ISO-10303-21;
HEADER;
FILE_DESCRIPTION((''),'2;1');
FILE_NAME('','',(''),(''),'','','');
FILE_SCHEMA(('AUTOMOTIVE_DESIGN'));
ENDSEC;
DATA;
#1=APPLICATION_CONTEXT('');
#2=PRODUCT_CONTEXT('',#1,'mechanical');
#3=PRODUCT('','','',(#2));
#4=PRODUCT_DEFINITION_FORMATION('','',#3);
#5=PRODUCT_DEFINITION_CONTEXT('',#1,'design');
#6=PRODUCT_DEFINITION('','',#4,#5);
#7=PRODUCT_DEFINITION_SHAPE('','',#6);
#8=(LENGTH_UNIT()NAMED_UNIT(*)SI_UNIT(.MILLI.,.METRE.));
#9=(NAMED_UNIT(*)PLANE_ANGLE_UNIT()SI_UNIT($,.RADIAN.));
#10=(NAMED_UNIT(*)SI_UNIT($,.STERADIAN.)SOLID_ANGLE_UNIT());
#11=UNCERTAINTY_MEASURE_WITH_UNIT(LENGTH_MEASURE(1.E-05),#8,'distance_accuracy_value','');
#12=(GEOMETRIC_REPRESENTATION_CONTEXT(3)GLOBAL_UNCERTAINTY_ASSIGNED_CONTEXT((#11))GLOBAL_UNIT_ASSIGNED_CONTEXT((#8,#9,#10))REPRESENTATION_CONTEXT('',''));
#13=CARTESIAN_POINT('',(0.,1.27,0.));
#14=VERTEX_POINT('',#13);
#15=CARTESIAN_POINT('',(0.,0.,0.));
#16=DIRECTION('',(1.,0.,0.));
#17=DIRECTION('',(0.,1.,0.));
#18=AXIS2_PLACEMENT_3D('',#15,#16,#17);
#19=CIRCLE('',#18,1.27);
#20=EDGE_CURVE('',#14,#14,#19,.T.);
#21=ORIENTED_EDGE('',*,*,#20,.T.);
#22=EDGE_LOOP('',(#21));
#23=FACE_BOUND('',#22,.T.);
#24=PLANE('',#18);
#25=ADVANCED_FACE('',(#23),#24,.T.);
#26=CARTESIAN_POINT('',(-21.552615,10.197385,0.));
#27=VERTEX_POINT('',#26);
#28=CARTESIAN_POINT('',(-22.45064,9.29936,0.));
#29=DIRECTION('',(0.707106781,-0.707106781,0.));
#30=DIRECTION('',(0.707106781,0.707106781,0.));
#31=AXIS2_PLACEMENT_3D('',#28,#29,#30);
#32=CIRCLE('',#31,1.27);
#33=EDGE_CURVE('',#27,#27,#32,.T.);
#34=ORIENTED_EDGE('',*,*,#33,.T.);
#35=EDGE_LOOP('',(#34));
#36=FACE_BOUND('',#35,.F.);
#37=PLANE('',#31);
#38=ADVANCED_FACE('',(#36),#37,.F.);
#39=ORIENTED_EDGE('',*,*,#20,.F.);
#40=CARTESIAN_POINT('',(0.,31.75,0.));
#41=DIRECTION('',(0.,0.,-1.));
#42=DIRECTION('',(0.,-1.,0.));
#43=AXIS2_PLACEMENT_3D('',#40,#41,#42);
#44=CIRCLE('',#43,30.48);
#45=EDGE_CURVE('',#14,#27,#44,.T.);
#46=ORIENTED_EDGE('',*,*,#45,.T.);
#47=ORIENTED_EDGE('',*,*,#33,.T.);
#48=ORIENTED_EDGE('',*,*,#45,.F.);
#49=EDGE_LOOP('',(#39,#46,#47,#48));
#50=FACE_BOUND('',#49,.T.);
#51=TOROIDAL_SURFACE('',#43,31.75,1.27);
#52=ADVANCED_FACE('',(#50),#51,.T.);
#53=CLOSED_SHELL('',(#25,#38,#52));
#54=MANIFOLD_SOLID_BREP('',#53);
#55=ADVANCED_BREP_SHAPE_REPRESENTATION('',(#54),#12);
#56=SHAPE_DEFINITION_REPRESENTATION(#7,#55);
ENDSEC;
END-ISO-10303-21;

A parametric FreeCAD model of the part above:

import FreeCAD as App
import Part
import Sketcher

V = App.Vector
Q = App.Units.Quantity

doc = App.newDocument("Part")
body = doc.addObject("PartDesign::Body", "Body")

# Sketch on YZ plane
sketch1 = body.newObject("Sketcher::SketchObject", "Sketch")
sketch1.AttachmentSupport = (doc.getObject("YZ_Plane"), [""])
sketch1.MapMode = "FlatFace"
sketch1.addGeometry(Part.Circle(V(0, 0, 0), V(0, 0, 1), 1.3), False)
sketch1.addGeometry(Part.LineSegment(V(31.8, 0, 0), V(31.8, -10, 0)), True)  # axis
sketch1.addConstraint([
    Sketcher.Constraint("Vertical", 1),
    Sketcher.Constraint("Coincident", 0, 3, -1, 1),
    Sketcher.Constraint("PointOnObject", 1, 1, -1),
    Sketcher.Constraint("Diameter", 0, Q("0.1 in")),
    Sketcher.Constraint("DistanceX", -1, 1, 1, 1, Q("1.25 in")),
    Sketcher.Constraint("DistanceY", 1, 2, 1, 1, Q("10 mm")),
])
revolution = body.newObject("PartDesign::Revolution", "Revolution")
revolution.Profile = sketch1
revolution.ReferenceAxis = (sketch1, ["Axis0"])
revolution.Angle = 45

doc.recompute()
